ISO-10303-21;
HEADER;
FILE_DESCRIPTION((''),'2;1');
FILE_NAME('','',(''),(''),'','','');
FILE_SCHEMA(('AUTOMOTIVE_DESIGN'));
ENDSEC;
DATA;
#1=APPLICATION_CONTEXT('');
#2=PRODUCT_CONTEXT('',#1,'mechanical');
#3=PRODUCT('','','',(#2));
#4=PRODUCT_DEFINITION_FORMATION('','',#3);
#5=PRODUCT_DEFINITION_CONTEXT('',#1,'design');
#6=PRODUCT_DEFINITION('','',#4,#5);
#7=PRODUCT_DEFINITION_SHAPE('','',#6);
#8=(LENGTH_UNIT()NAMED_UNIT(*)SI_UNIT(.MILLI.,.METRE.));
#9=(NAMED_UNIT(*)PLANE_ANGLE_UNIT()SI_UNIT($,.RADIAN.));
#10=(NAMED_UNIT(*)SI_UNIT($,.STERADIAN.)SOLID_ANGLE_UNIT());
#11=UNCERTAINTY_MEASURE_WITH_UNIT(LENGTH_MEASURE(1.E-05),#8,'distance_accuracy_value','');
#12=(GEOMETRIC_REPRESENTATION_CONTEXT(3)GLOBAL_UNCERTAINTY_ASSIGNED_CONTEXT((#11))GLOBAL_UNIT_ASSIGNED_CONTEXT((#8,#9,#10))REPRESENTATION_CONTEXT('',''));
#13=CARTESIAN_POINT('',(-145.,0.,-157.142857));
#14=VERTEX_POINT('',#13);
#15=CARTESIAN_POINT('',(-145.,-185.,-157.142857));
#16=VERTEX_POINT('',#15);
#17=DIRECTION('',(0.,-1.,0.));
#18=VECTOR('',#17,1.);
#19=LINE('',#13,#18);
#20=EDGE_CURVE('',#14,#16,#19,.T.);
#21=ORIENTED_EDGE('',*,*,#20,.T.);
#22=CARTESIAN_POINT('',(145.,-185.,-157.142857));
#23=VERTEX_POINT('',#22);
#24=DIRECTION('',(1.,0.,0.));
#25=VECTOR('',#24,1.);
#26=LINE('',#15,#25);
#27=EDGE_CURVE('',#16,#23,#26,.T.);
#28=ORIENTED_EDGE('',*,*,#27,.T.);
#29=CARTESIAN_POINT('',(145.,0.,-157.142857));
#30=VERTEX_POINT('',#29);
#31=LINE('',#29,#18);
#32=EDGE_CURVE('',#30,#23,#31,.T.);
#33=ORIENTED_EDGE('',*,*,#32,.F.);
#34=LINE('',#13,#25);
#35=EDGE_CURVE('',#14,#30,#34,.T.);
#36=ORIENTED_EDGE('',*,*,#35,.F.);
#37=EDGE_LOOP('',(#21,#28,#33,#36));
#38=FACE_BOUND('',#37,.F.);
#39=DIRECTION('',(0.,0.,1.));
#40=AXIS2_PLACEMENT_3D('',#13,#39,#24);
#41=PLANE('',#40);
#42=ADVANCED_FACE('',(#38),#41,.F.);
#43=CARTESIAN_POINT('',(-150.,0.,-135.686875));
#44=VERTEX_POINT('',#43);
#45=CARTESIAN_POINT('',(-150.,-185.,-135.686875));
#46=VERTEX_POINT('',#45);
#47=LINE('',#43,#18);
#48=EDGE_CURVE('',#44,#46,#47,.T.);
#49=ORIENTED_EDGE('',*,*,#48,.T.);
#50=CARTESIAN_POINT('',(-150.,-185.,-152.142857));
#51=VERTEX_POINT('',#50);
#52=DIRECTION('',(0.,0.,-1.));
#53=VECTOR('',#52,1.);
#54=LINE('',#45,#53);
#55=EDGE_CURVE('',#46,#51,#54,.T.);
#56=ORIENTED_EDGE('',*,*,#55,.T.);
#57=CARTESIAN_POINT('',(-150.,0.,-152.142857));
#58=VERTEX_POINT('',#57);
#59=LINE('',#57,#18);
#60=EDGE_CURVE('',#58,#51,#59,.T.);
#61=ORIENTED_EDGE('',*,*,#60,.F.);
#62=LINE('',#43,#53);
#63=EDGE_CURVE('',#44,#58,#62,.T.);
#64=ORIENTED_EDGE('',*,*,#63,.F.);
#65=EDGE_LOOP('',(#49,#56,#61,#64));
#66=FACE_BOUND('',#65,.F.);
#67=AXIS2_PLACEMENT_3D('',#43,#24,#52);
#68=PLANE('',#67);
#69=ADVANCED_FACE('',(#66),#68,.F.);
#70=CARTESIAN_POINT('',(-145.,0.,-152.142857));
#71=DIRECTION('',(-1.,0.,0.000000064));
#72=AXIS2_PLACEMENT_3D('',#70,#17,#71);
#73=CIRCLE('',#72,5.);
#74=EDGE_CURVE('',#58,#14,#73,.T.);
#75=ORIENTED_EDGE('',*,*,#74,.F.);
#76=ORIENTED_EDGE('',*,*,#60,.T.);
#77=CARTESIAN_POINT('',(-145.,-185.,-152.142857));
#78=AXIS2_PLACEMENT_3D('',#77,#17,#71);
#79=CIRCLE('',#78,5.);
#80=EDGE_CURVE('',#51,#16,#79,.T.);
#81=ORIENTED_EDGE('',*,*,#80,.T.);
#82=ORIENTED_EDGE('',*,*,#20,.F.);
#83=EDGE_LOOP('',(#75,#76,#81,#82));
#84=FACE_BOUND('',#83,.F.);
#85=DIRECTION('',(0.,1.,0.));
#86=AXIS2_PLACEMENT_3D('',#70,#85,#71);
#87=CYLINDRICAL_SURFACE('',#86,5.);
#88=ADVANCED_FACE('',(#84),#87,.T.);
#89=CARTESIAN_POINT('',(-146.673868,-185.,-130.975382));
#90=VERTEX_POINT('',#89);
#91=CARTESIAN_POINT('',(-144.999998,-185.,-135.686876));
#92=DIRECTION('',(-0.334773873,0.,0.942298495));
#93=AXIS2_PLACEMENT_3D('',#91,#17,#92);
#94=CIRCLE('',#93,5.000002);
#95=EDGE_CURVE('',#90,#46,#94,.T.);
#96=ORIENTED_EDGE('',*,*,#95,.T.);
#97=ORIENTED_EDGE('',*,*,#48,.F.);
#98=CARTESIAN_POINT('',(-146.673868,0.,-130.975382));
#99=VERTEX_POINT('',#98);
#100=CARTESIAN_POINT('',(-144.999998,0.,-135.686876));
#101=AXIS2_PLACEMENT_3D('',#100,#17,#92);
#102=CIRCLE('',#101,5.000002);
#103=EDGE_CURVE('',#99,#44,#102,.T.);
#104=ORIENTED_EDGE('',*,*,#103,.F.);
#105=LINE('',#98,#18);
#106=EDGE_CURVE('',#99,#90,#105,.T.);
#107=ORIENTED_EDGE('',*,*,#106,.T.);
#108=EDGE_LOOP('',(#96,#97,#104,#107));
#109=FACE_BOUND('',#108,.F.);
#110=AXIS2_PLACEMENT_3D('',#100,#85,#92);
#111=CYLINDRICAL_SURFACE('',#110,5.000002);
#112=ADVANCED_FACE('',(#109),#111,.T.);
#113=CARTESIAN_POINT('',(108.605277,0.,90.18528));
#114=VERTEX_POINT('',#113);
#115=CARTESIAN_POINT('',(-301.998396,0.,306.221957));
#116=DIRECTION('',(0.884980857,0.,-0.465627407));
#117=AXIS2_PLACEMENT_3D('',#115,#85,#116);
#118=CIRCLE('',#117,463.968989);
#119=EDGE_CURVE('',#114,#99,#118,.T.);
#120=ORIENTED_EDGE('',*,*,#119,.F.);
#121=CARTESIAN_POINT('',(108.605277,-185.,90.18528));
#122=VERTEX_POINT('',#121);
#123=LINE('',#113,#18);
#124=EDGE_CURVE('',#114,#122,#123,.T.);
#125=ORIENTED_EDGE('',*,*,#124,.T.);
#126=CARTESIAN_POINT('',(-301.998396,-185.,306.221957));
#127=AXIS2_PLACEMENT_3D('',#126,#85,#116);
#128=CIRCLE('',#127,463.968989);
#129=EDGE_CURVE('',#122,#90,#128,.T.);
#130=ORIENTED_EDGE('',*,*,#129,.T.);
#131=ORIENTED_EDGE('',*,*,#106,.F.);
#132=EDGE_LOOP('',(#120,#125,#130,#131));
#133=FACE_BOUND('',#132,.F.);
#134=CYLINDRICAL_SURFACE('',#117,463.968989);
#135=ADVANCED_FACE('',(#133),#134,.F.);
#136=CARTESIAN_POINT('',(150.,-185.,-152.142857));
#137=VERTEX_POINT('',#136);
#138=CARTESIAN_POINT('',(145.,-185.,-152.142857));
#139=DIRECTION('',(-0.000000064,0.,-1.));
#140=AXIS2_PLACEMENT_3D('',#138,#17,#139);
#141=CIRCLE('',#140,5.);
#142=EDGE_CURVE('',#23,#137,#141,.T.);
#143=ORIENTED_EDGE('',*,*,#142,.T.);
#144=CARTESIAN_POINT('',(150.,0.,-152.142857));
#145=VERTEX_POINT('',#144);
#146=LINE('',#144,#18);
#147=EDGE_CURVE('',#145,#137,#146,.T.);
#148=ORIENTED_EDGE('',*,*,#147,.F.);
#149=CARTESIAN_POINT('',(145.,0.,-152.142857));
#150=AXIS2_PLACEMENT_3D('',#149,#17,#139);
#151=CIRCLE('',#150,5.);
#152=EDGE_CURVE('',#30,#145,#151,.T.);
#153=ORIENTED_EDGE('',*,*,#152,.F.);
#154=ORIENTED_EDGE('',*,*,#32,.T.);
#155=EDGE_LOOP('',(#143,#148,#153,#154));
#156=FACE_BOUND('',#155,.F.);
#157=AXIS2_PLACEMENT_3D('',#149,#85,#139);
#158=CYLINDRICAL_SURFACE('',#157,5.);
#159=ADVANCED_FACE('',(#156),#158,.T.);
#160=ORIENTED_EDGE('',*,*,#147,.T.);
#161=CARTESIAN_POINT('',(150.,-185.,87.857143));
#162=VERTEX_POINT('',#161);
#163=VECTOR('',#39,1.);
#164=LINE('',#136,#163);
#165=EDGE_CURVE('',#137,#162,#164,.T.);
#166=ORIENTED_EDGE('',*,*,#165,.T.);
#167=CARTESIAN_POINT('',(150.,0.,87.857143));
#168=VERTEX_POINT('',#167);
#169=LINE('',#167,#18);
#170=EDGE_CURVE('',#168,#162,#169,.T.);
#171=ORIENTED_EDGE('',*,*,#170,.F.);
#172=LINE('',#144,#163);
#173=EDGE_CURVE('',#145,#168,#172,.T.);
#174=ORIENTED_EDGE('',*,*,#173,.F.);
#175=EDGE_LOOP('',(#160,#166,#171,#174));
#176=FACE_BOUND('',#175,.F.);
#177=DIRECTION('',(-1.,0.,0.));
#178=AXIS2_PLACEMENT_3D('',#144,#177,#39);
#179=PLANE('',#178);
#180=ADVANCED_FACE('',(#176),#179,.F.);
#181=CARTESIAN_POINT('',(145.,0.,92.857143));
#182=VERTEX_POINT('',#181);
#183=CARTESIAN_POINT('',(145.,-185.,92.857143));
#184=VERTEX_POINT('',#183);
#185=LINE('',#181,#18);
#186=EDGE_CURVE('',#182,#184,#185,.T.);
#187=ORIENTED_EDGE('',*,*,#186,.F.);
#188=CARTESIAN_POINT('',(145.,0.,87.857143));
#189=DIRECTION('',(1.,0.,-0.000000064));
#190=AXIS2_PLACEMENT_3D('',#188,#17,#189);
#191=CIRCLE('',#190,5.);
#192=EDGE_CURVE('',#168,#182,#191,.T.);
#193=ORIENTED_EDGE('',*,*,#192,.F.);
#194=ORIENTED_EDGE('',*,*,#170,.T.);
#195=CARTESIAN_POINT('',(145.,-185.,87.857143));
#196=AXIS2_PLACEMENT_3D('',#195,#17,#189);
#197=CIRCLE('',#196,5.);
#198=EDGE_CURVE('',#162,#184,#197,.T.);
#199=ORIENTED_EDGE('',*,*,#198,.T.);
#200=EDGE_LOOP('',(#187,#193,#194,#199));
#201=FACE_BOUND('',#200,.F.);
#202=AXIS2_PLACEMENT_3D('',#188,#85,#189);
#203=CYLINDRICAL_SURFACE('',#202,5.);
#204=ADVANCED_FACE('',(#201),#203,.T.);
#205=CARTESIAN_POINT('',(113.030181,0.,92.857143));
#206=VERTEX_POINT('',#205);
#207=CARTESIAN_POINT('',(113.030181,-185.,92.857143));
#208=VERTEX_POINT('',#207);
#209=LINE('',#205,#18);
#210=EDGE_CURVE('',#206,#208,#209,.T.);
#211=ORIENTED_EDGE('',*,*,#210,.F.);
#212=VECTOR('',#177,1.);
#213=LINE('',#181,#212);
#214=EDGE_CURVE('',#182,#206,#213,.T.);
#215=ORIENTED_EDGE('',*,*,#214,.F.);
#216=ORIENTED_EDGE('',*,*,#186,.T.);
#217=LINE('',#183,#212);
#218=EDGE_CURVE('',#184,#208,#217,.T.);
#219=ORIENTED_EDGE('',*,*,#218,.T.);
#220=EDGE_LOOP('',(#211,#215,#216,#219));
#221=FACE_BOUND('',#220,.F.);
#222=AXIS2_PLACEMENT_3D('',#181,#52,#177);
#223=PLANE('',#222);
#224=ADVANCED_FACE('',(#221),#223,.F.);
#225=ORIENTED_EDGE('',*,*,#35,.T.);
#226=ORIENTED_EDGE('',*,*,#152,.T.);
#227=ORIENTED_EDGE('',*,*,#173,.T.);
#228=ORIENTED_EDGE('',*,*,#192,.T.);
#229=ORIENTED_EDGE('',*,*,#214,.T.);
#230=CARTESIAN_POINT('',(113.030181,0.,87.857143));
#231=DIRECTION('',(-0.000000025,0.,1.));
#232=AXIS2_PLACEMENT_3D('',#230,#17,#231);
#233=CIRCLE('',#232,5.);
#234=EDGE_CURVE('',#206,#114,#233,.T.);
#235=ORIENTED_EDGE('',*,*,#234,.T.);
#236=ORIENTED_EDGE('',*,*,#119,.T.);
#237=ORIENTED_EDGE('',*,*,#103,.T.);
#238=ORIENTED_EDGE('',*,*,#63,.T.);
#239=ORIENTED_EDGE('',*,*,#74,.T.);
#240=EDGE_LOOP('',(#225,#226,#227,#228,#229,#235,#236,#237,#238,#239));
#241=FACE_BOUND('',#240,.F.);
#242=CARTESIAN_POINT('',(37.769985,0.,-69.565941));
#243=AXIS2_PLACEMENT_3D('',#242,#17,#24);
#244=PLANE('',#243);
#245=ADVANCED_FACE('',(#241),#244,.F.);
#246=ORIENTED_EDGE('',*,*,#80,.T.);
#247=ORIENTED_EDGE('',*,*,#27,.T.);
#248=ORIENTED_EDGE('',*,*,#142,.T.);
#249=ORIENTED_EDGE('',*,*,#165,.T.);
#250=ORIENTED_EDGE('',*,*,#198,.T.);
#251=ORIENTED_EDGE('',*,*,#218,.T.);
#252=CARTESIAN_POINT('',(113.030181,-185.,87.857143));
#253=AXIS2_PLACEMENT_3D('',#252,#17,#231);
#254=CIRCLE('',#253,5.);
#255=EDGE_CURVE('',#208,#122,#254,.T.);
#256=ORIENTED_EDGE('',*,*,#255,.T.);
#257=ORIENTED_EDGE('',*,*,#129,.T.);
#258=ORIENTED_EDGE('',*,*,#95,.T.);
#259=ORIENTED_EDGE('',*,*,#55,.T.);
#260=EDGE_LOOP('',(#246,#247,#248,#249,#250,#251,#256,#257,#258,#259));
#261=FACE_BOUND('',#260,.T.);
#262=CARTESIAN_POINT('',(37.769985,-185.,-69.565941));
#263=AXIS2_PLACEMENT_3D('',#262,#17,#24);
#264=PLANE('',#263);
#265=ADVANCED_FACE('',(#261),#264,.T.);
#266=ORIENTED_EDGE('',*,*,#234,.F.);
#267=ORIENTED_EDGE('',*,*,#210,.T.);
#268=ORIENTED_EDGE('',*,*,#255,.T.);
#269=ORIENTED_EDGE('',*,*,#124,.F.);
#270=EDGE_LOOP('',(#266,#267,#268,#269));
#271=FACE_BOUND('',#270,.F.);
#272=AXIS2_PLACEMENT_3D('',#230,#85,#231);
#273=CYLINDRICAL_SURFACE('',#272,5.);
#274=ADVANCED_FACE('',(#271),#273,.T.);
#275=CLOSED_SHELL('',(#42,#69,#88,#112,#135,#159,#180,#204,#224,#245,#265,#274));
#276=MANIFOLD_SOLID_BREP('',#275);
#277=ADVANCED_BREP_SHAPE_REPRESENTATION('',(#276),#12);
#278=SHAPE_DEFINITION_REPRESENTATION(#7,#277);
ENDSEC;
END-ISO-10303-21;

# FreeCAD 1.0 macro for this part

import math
import FreeCAD as App
import Part
import Sketcher

doc = App.newDocument("Part")
body = doc.addObject("PartDesign::Body", "Body")

# Sketch on XZ plane
sketch1 = doc.addObject("Sketcher::SketchObject", "Sketch")
body.addObject(sketch1)
sketch1.AttachmentSupport = (doc.XZ_Plane, [""])
sketch1.MapMode = "FlatFace"
sketch1.addGeometry([
    Part.ArcOfCircle(Part.Circle(App.Vector(-145, -152.142857, 0), App.Vector(0, 0, 1), 5), math.radians(179.999996), math.radians(270.000004)),  # 0
    Part.LineSegment(App.Vector(-145, -157.142857, 0), App.Vector(145, -157.142857, 0)),  # 1
    Part.ArcOfCircle(Part.Circle(App.Vector(145, -152.142857, 0), App.Vector(0, 0, 1), 5), math.radians(-90.000004), math.radians(0.000004)),  # 2
    Part.LineSegment(App.Vector(150, -152.142857, 0), App.Vector(150, 87.857143, 0)),  # 3
    Part.ArcOfCircle(Part.Circle(App.Vector(145, 87.857143, 0), App.Vector(0, 0, 1), 5), math.radians(-0.000004), math.radians(90.000004)),  # 4
    Part.LineSegment(App.Vector(145, 92.857143, 0), App.Vector(113.030181, 92.857143, 0)),  # 5
    Part.ArcOfCircle(Part.Circle(App.Vector(113.030181, 87.857143, 0), App.Vector(0, 0, 1), 5), math.radians(90.000001), math.radians(152.249168)),  # 6
    Part.ArcOfCircle(Part.Circle(App.Vector(-301.998396, 306.221957, 0), App.Vector(0, 0, 1), 463.968989), math.radians(-70.441234), math.radians(-27.750834)),  # 7
    Part.ArcOfCircle(Part.Circle(App.Vector(-144.999998, -135.686876, 0), App.Vector(0, 0, 1), 5.000002), math.radians(109.558788), math.radians(179.999984)),  # 8
    Part.LineSegment(App.Vector(-150, -135.686875, 0), App.Vector(-150, -152.142857, 0)),  # 9
], False)
sketch1.addConstraint([
    Sketcher.Constraint("Tangent", 0, 2, 1, 1),
    Sketcher.Constraint("Tangent", 1, 2, 2, 1),
    Sketcher.Constraint("Tangent", 2, 2, 3, 1),
    Sketcher.Constraint("Tangent", 3, 2, 4, 1),
    Sketcher.Constraint("Tangent", 4, 2, 5, 1),
    Sketcher.Constraint("Tangent", 5, 2, 6, 1),
    Sketcher.Constraint("Tangent", 6, 2, 7, 2),
    Sketcher.Constraint("Tangent", 7, 1, 8, 1),
    Sketcher.Constraint("Tangent", 8, 2, 9, 1),
    Sketcher.Constraint("Tangent", 9, 2, 0, 1),
    Sketcher.Constraint("Horizontal", 1),
    Sketcher.Constraint("Vertical", 3),
    Sketcher.Constraint("Horizontal", 5),
    Sketcher.Constraint("Vertical", 9),
    Sketcher.Constraint("Equal", 0, 2),
    Sketcher.Constraint("Equal", 2, 4),
    Sketcher.Constraint("Equal", 4, 6),
    Sketcher.Constraint("Radius", 0, 5.0),
    Sketcher.Constraint("DistanceX", 1, 1, 1, 2, 290.0),
    Sketcher.Constraint("DistanceY", 3, 1, 3, 2, 240.0),
    Sketcher.Constraint("DistanceX", 0, 3, -1, 1, 145.0),
    Sketcher.Constraint("DistanceX", 8, 3, 2, 3, 289.999998),
    Sketcher.Constraint("Radius", 7, 463.968989),
    Sketcher.Constraint("DistanceX", 5, 2, 5, 1, 31.969819),
    Sketcher.Constraint("DistanceX", 7, 3, 8, 3, 156.998398),
    Sketcher.Constraint("DistanceY", -1, 1, 6, 2, 90.18528),
])
pad1 = doc.addObject("PartDesign::Pad", "Pad")
body.addObject(pad1)
pad1.Profile = sketch1
pad1.Length = 185

doc.recompute()
